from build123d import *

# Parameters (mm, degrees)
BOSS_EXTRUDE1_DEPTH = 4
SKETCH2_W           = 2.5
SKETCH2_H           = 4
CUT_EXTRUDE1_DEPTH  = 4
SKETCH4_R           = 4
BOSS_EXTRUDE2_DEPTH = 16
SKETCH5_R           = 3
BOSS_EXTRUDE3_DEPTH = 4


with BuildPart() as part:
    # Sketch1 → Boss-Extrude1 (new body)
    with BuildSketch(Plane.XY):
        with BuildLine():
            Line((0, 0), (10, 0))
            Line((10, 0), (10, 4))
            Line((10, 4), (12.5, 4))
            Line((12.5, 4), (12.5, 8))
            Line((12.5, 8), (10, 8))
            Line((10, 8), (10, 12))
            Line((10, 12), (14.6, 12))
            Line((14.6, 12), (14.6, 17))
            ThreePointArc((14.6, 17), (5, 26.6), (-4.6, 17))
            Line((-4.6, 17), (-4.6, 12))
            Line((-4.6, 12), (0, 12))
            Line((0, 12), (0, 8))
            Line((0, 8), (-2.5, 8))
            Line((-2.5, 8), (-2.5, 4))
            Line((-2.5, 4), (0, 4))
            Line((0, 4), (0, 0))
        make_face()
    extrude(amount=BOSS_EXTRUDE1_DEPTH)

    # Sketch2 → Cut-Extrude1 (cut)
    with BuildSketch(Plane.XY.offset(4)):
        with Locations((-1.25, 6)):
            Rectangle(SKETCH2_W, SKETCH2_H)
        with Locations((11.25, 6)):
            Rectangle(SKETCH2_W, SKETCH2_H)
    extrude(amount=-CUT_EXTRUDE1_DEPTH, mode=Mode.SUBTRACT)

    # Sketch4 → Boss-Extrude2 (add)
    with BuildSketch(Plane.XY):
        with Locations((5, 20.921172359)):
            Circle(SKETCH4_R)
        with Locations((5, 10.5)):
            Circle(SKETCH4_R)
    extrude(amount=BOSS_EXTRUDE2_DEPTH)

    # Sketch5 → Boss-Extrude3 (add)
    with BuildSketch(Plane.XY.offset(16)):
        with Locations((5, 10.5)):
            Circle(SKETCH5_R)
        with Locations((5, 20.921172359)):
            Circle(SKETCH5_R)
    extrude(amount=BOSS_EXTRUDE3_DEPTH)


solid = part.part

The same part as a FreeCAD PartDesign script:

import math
import FreeCAD as App
import Part
import Sketcher

doc = App.newDocument("Part")
body = doc.addObject("PartDesign::Body", "Body")

sketch1 = doc.addObject("Sketcher::SketchObject", "Sketch")
body.addObject(sketch1)
sketch1.AttachmentSupport = (doc.XY_Plane, [""])
sketch1.MapMode = "FlatFace"
sketch1.addGeometry([
    Part.LineSegment(App.Vector(0, 0, 0), App.Vector(10, 0, 0)),
    Part.LineSegment(App.Vector(10, 0, 0), App.Vector(10, 4, 0)),
    Part.LineSegment(App.Vector(10, 4, 0), App.Vector(12.5, 4, 0)),
    Part.LineSegment(App.Vector(12.5, 4, 0), App.Vector(12.5, 8, 0)),
    Part.LineSegment(App.Vector(12.5, 8, 0), App.Vector(10, 8, 0)),
    Part.LineSegment(App.Vector(10, 8, 0), App.Vector(10, 12, 0)),
    Part.LineSegment(App.Vector(10, 12, 0), App.Vector(14.6, 12, 0)),
    Part.LineSegment(App.Vector(14.6, 12, 0), App.Vector(14.6, 17, 0)),
    Part.ArcOfCircle(Part.Circle(App.Vector(5, 17, 0), App.Vector(0, 0, 1), 9.6), math.radians(0), math.radians(180)),
    Part.LineSegment(App.Vector(-4.6, 17, 0), App.Vector(-4.6, 12, 0)),
    Part.LineSegment(App.Vector(-4.6, 12, 0), App.Vector(0, 12, 0)),
    Part.LineSegment(App.Vector(0, 12, 0), App.Vector(0, 8, 0)),
    Part.LineSegment(App.Vector(0, 8, 0), App.Vector(-2.5, 8, 0)),
    Part.LineSegment(App.Vector(-2.5, 8, 0), App.Vector(-2.5, 4, 0)),
    Part.LineSegment(App.Vector(-2.5, 4, 0), App.Vector(0, 4, 0)),
    Part.LineSegment(App.Vector(0, 4, 0), App.Vector(0, 0, 0)),
], False)
sketch1.addConstraint([
    Sketcher.Constraint("Coincident", 0, 2, 1, 1),
    Sketcher.Constraint("Coincident", 1, 2, 2, 1),
    Sketcher.Constraint("Coincident", 2, 2, 3, 1),
    Sketcher.Constraint("Coincident", 3, 2, 4, 1),
    Sketcher.Constraint("Coincident", 4, 2, 5, 1),
    Sketcher.Constraint("Coincident", 5, 2, 6, 1),
    Sketcher.Constraint("Coincident", 6, 2, 7, 1),
    Sketcher.Constraint("Tangent", 7, 2, 8, 1),
    Sketcher.Constraint("Tangent", 8, 2, 9, 1),
    Sketcher.Constraint("Coincident", 9, 2, 10, 1),
    Sketcher.Constraint("Coincident", 10, 2, 11, 1),
    Sketcher.Constraint("Coincident", 11, 2, 12, 1),
    Sketcher.Constraint("Coincident", 12, 2, 13, 1),
    Sketcher.Constraint("Coincident", 13, 2, 14, 1),
    Sketcher.Constraint("Coincident", 14, 2, 15, 1),
    Sketcher.Constraint("Coincident", 15, 2, 0, 1),
    Sketcher.Constraint("Horizontal", 0),
    Sketcher.Constraint("Vertical", 1),
    Sketcher.Constraint("Horizontal", 2),
    Sketcher.Constraint("Vertical", 3),
    Sketcher.Constraint("Horizontal", 4),
    Sketcher.Constraint("Vertical", 5),
    Sketcher.Constraint("Horizontal", 6),
    Sketcher.Constraint("Vertical", 7),
    Sketcher.Constraint("Vertical", 9),
    Sketcher.Constraint("Horizontal", 10),
    Sketcher.Constraint("Vertical", 11),
    Sketcher.Constraint("Horizontal", 12),
    Sketcher.Constraint("Vertical", 13),
    Sketcher.Constraint("Horizontal", 14),
    Sketcher.Constraint("Vertical", 15),
    Sketcher.Constraint("Coincident", 15, 2, -1, 1),
    Sketcher.Constraint("PointOnObject", 10, 2, -2),
    Sketcher.Constraint("Horizontal", 6, 2, 9, 2),
    Sketcher.Constraint("Horizontal", 4, 2, 11, 2),
    Sketcher.Constraint("Horizontal", 2, 2, 13, 2),
    Sketcher.Constraint("Vertical", 1, 2, 4, 2),
    Sketcher.Constraint("Equal", 6, 10),
    Sketcher.Constraint("Equal", 4, 12),
    Sketcher.Constraint("Equal", 1, 3),
    Sketcher.Constraint("Equal", 3, 5),
    Sketcher.Constraint("Radius", 8, 9.6),
    Sketcher.Constraint("DistanceX", 0, 1, 0, 2, 10.0),
    Sketcher.Constraint("DistanceY", 1, 1, 1, 2, 4.0),
    Sketcher.Constraint("DistanceY", 7, 1, 7, 2, 5.0),
    Sketcher.Constraint("DistanceX", 2, 1, 2, 2, 2.5),
])
pad1 = doc.addObject("PartDesign::Pad", "Pad")
body.addObject(pad1)
pad1.Profile = sketch1
pad1.Length = 4

sketch2 = doc.addObject("Sketcher::SketchObject", "Sketch001")
body.addObject(sketch2)
sketch2.AttachmentSupport = (doc.XY_Plane, [""])
sketch2.MapMode = "FlatFace"
sketch2.AttachmentOffset = App.Placement(App.Vector(0, 0, 4), App.Rotation())
sketch2.addGeometry([
    Part.LineSegment(App.Vector(-2.5, 8, 0), App.Vector(-2.5, 4, 0)),
    Part.LineSegment(App.Vector(-2.5, 4, 0), App.Vector(0, 4, 0)),
    Part.LineSegment(App.Vector(0, 4, 0), App.Vector(0, 8, 0)),
    Part.LineSegment(App.Vector(0, 8, 0), App.Vector(-2.5, 8, 0)),
    Part.LineSegment(App.Vector(10, 8, 0), App.Vector(10, 4, 0)),
    Part.LineSegment(App.Vector(10, 4, 0), App.Vector(12.5, 4, 0)),
    Part.LineSegment(App.Vector(12.5, 4, 0), App.Vector(12.5, 8, 0)),
    Part.LineSegment(App.Vector(12.5, 8, 0), App.Vector(10, 8, 0)),
], False)
sketch2.addConstraint([
    Sketcher.Constraint("Coincident", 0, 2, 1, 1),
    Sketcher.Constraint("Coincident", 1, 2, 2, 1),
    Sketcher.Constraint("Coincident", 2, 2, 3, 1),
    Sketcher.Constraint("Coincident", 3, 2, 0, 1),
    Sketcher.Constraint("Coincident", 4, 2, 5, 1),
    Sketcher.Constraint("Coincident", 5, 2, 6, 1),
    Sketcher.Constraint("Coincident", 6, 2, 7, 1),
    Sketcher.Constraint("Coincident", 7, 2, 4, 1),
    Sketcher.Constraint("Vertical", 0),
    Sketcher.Constraint("Horizontal", 1),
    Sketcher.Constraint("Vertical", 2),
    Sketcher.Constraint("Horizontal", 3),
    Sketcher.Constraint("Vertical", 4),
    Sketcher.Constraint("Horizontal", 5),
    Sketcher.Constraint("Vertical", 6),
    Sketcher.Constraint("Horizontal", 7),
    Sketcher.Constraint("PointOnObject", 1, 2, -2),
    Sketcher.Constraint("Horizontal", 1, 2, 4, 2),
    Sketcher.Constraint("Horizontal", 3, 2, 6, 2),
    Sketcher.Constraint("Equal", 3, 5),
    Sketcher.Constraint("DistanceY", 0, 2, 0, 1, 4.0),
    Sketcher.Constraint("DistanceX", 1, 1, 1, 2, 2.5),
    Sketcher.Constraint("DistanceY", -1, 1, 0, 2, 4.0),
    Sketcher.Constraint("DistanceX", -1, 1, 4, 2, 10.0),
])
pocket1 = doc.addObject("PartDesign::Pocket", "Pocket")
body.addObject(pocket1)
pocket1.Profile = sketch2
pocket1.Length = 4

sketch3 = doc.addObject("Sketcher::SketchObject", "Sketch002")
body.addObject(sketch3)
sketch3.AttachmentSupport = (doc.XY_Plane, [""])
sketch3.MapMode = "FlatFace"
sketch3.addGeometry([
    Part.Circle(App.Vector(5, 20.9, 0), App.Vector(0, 0, 1), 4),
    Part.Circle(App.Vector(5, 10.5, 0), App.Vector(0, 0, 1), 4),
], False)
sketch3.addConstraint([
    Sketcher.Constraint("Equal", 0, 1),
    Sketcher.Constraint("Vertical", 0, 3, 1, 3),
    Sketcher.Constraint("Diameter", 0, 8.0),
    Sketcher.Constraint("DistanceX", -1, 1, 0, 3, 5.0),
    Sketcher.Constraint("DistanceY", -1, 1, 1, 3, 10.5),
    Sketcher.Constraint("DistanceY", -1, 1, 0, 3, 20.921172),
])
pad2 = doc.addObject("PartDesign::Pad", "Pad001")
body.addObject(pad2)
pad2.Profile = sketch3
pad2.Length = 16

sketch4 = doc.addObject("Sketcher::SketchObject", "Sketch003")
body.addObject(sketch4)
sketch4.AttachmentSupport = (doc.XY_Plane, [""])
sketch4.MapMode = "FlatFace"
sketch4.AttachmentOffset = App.Placement(App.Vector(0, 0, 16), App.Rotation())
sketch4.addGeometry([
    Part.Circle(App.Vector(5, 10.5, 0), App.Vector(0, 0, 1), 3),
    Part.Circle(App.Vector(5, 20.9, 0), App.Vector(0, 0, 1), 3),
], False)
sketch4.addConstraint([
    Sketcher.Constraint("Equal", 0, 1),
    Sketcher.Constraint("Vertical", 0, 3, 1, 3),
    Sketcher.Constraint("Diameter", 0, 6.0),
    Sketcher.Constraint("DistanceX", -1, 1, 0, 3, 5.0),
    Sketcher.Constraint("DistanceY", -1, 1, 0, 3, 10.5),
    Sketcher.Constraint("DistanceY", -1, 1, 1, 3, 20.921172),
])
pad3 = doc.addObject("PartDesign::Pad", "Pad002")
body.addObject(pad3)
pad3.Profile = sketch4
pad3.Length = 4

doc.recompute()
